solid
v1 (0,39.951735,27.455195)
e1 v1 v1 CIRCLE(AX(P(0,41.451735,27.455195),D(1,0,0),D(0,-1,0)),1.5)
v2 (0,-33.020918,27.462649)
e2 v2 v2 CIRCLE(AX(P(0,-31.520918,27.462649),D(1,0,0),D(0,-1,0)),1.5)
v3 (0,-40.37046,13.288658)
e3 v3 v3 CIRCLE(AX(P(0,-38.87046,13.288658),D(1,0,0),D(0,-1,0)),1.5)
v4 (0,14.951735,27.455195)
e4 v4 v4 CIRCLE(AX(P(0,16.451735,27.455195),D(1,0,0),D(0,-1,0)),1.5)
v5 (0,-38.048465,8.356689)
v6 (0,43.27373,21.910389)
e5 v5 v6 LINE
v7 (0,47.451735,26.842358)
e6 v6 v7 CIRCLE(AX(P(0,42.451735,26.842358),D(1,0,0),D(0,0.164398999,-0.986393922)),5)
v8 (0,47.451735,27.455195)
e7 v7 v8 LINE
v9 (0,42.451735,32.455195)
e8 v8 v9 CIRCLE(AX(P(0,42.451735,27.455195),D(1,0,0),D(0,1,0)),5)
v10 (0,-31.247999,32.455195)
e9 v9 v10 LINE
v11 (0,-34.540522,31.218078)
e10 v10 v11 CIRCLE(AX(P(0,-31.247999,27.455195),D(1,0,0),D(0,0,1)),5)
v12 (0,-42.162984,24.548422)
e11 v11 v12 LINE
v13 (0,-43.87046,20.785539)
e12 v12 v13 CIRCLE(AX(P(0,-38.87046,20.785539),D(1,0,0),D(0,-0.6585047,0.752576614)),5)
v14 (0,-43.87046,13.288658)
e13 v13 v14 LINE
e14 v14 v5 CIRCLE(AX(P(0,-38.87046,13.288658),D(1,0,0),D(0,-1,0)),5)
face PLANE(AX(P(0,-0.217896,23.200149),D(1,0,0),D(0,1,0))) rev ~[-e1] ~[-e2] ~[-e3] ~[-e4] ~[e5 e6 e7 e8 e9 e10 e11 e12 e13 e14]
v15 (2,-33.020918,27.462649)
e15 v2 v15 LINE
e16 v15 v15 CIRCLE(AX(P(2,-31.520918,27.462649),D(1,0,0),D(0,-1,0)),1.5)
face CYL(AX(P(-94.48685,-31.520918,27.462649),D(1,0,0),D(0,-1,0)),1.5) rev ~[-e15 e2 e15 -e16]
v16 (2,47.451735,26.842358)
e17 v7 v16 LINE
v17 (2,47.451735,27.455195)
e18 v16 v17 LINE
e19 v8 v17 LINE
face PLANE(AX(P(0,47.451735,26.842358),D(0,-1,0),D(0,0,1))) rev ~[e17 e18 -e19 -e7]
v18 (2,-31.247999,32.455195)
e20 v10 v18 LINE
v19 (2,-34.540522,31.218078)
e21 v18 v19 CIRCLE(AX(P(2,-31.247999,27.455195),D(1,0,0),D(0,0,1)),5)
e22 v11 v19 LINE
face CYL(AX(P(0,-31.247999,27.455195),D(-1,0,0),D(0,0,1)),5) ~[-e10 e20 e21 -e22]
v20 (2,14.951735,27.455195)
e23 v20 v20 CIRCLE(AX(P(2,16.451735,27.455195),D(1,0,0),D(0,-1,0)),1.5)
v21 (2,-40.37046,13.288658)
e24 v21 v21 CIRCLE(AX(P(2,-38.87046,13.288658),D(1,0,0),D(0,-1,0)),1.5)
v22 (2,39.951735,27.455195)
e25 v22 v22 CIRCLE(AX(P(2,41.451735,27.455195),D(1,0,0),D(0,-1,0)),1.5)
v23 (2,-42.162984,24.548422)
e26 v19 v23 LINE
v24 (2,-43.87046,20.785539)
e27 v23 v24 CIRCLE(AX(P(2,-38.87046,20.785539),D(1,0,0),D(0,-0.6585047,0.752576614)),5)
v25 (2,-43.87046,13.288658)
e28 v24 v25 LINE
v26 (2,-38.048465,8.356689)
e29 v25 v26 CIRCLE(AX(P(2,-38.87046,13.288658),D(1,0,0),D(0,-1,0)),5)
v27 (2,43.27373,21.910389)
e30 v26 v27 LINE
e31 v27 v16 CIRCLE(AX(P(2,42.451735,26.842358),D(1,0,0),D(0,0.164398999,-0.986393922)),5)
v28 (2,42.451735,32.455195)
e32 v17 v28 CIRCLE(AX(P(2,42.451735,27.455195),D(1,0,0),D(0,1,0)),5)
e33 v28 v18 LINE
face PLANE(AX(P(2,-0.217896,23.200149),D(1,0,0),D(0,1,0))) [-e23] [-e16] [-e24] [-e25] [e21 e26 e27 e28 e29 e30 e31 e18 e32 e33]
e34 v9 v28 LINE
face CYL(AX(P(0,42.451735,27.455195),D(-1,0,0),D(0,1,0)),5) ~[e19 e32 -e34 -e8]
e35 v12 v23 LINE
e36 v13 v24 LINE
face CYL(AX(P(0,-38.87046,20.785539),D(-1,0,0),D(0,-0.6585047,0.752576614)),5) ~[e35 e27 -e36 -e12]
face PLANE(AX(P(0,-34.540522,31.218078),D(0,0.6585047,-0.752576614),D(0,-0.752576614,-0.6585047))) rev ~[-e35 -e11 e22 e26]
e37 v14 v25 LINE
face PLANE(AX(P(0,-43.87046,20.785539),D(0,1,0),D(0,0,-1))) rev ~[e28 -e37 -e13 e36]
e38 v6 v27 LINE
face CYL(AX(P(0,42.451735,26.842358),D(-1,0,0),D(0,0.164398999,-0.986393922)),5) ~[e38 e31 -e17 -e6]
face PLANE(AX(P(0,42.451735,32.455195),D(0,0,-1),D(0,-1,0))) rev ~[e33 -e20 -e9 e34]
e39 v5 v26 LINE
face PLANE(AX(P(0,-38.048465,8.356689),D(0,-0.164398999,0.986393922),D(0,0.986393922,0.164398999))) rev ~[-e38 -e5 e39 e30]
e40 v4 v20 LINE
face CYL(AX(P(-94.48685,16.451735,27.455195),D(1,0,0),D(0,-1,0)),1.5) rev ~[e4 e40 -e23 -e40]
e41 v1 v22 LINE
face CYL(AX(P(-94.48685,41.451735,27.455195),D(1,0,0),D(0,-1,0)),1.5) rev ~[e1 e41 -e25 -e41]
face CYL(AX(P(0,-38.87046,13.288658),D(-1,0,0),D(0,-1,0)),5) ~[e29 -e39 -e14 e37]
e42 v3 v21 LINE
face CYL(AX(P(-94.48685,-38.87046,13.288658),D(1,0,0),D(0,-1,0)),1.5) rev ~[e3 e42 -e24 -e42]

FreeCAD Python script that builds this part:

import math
import FreeCAD as App
import Part
import Sketcher

V = App.Vector
Q = App.Units.Quantity

doc = App.newDocument("Part")
body = doc.addObject("PartDesign::Body", "Body")

# Sketch on YZ plane
sketch1 = body.newObject("Sketcher::SketchObject", "Sketch")
sketch1.AttachmentSupport = (doc.getObject("YZ_Plane"), [""])
sketch1.MapMode = "FlatFace"
sketch1.addGeometry([
    Part.LineSegment(V(42.5, 32.5, 0), V(-31.2, 32.5, 0)),  # 0
    Part.ArcOfCircle(Part.Circle(V(-31.2, 27.5, 0), V(0, 0, 1), 5), math.radians(90), math.radians(131)),  # 1
    Part.LineSegment(V(-34.5, 31.2, 0), V(-42.2, 24.5, 0)),  # 2
    Part.ArcOfCircle(Part.Circle(V(-38.9, 20.8, 0), V(0, 0, 1), 5), math.radians(131), math.radians(180)),  # 3
    Part.LineSegment(V(-43.9, 20.8, 0), V(-43.9, 13.3, 0)),  # 4
    Part.ArcOfCircle(Part.Circle(V(-38.9, 13.3, 0), V(0, 0, 1), 5), math.radians(180), math.radians(279)),  # 5
    Part.LineSegment(V(-38, 8.4, 0), V(43.3, 21.9, 0)),  # 6
    Part.ArcOfCircle(Part.Circle(V(42.5, 26.8, 0), V(0, 0, 1), 5), math.radians(-81), math.radians(0)),  # 7
    Part.LineSegment(V(47.5, 26.8, 0), V(47.5, 27.5, 0)),  # 8
    Part.ArcOfCircle(Part.Circle(V(42.5, 27.5, 0), V(0, 0, 1), 5), math.radians(0), math.radians(90)),  # 9
], False)
sketch1.addConstraint([
    Sketcher.Constraint("Tangent", 0, 2, 1, 1),
    Sketcher.Constraint("Tangent", 1, 2, 2, 1),
    Sketcher.Constraint("Tangent", 2, 2, 3, 1),
    Sketcher.Constraint("Tangent", 3, 2, 4, 1),
    Sketcher.Constraint("Tangent", 4, 2, 5, 1),
    Sketcher.Constraint("Tangent", 5, 2, 6, 1),
    Sketcher.Constraint("Tangent", 6, 2, 7, 1),
    Sketcher.Constraint("Tangent", 7, 2, 8, 1),
    Sketcher.Constraint("Tangent", 8, 2, 9, 1),
    Sketcher.Constraint("Tangent", 9, 2, 0, 1),
    Sketcher.Constraint("Horizontal", 0),
    Sketcher.Constraint("Vertical", 4),
    Sketcher.Constraint("Vertical", 8),
    Sketcher.Constraint("Equal", 1, 3),
    Sketcher.Constraint("Equal", 3, 5),
    Sketcher.Constraint("Equal", 5, 7),
    Sketcher.Constraint("Equal", 7, 9),
    Sketcher.Constraint("Radius", 1, Q("5 mm")),
    Sketcher.Constraint("DistanceX", 1, 3, -1, 1, Q("31.247999 mm")),
    Sketcher.Constraint("DistanceY", 4, 2, 4, 1, Q("7.496881 mm")),
    Sketcher.Constraint("DistanceY", 5, 3, 7, 3, Q("13.5537 mm")),
    Sketcher.Constraint("DistanceX", 0, 2, 0, 1, Q("73.699733 mm")),
    Sketcher.Constraint("DistanceY", 8, 1, 8, 2, Q("0.612836 mm")),
    Sketcher.Constraint("DistanceX", 3, 3, -1, 1, Q("38.87046 mm")),
    Sketcher.Constraint("DistanceY", -1, 1, 3, 3, Q("20.785539 mm")),
])
pad1 = body.newObject("PartDesign::Pad", "Pad")
pad1.Profile = sketch1
pad1.Length = 2

# Sketch on YZ plane
sketch2 = body.newObject("Sketcher::SketchObject", "Sketch001")
sketch2.AttachmentSupport = (doc.getObject("YZ_Plane"), [""])
sketch2.MapMode = "FlatFace"
sketch2.addGeometry([
    Part.Circle(V(41.5, 27.5, 0), V(0, 0, 1), 1.5),
    Part.Circle(V(16.5, 27.5, 0), V(0, 0, 1), 1.5),
], False)
sketch2.addConstraint([
    Sketcher.Constraint("Equal", 0, 1),
    Sketcher.Constraint("Horizontal", 0, 3, 1, 3),
    Sketcher.Constraint("Diameter", 0, Q("3 mm")),
    Sketcher.Constraint("DistanceX", 1, 3, 0, 3, Q("25 mm")),
    Sketcher.Constraint("DistanceX", -1, 1, 0, 3, Q("41.451735 mm")),
    Sketcher.Constraint("DistanceY", -1, 1, 0, 3, Q("27.455195 mm")),
])
doc.recompute()
hole = body.newObject("PartDesign::Hole", "Hole")
hole.Profile = sketch2
hole.ThreadType = "None"
hole.Diameter = 3
hole.DepthType = "ThroughAll"
hole.Reversed = True

# Sketch on YZ plane
sketch3 = body.newObject("Sketcher::SketchObject", "Sketch002")
sketch3.AttachmentSupport = (doc.getObject("YZ_Plane"), [""])
sketch3.MapMode = "FlatFace"
sketch3.addGeometry([
    Part.Circle(V(-31.5, 27.5, 0), V(0, 0, 1), 1.5),
    Part.Circle(V(-38.9, 13.3, 0), V(0, 0, 1), 1.5),
], False)
sketch3.addConstraint([
    Sketcher.Constraint("Equal", 0, 1),
    Sketcher.Constraint("Diameter", 0, Q("3 mm")),
    Sketcher.Constraint("DistanceX", 0, 3, -1, 1, Q("31.520918 mm")),
    Sketcher.Constraint("DistanceY", -1, 1, 0, 3, Q("27.462649 mm")),
    Sketcher.Constraint("DistanceX", 1, 3, -1, 1, Q("38.87046 mm")),
    Sketcher.Constraint("DistanceY", -1, 1, 1, 3, Q("13.288658 mm")),
])
doc.recompute()
hole2 = body.newObject("PartDesign::Hole", "Hole001")
hole2.Profile = sketch3
hole2.ThreadType = "None"
hole2.Diameter = 3
hole2.DepthType = "ThroughAll"
hole2.Reversed = True

doc.recompute()
